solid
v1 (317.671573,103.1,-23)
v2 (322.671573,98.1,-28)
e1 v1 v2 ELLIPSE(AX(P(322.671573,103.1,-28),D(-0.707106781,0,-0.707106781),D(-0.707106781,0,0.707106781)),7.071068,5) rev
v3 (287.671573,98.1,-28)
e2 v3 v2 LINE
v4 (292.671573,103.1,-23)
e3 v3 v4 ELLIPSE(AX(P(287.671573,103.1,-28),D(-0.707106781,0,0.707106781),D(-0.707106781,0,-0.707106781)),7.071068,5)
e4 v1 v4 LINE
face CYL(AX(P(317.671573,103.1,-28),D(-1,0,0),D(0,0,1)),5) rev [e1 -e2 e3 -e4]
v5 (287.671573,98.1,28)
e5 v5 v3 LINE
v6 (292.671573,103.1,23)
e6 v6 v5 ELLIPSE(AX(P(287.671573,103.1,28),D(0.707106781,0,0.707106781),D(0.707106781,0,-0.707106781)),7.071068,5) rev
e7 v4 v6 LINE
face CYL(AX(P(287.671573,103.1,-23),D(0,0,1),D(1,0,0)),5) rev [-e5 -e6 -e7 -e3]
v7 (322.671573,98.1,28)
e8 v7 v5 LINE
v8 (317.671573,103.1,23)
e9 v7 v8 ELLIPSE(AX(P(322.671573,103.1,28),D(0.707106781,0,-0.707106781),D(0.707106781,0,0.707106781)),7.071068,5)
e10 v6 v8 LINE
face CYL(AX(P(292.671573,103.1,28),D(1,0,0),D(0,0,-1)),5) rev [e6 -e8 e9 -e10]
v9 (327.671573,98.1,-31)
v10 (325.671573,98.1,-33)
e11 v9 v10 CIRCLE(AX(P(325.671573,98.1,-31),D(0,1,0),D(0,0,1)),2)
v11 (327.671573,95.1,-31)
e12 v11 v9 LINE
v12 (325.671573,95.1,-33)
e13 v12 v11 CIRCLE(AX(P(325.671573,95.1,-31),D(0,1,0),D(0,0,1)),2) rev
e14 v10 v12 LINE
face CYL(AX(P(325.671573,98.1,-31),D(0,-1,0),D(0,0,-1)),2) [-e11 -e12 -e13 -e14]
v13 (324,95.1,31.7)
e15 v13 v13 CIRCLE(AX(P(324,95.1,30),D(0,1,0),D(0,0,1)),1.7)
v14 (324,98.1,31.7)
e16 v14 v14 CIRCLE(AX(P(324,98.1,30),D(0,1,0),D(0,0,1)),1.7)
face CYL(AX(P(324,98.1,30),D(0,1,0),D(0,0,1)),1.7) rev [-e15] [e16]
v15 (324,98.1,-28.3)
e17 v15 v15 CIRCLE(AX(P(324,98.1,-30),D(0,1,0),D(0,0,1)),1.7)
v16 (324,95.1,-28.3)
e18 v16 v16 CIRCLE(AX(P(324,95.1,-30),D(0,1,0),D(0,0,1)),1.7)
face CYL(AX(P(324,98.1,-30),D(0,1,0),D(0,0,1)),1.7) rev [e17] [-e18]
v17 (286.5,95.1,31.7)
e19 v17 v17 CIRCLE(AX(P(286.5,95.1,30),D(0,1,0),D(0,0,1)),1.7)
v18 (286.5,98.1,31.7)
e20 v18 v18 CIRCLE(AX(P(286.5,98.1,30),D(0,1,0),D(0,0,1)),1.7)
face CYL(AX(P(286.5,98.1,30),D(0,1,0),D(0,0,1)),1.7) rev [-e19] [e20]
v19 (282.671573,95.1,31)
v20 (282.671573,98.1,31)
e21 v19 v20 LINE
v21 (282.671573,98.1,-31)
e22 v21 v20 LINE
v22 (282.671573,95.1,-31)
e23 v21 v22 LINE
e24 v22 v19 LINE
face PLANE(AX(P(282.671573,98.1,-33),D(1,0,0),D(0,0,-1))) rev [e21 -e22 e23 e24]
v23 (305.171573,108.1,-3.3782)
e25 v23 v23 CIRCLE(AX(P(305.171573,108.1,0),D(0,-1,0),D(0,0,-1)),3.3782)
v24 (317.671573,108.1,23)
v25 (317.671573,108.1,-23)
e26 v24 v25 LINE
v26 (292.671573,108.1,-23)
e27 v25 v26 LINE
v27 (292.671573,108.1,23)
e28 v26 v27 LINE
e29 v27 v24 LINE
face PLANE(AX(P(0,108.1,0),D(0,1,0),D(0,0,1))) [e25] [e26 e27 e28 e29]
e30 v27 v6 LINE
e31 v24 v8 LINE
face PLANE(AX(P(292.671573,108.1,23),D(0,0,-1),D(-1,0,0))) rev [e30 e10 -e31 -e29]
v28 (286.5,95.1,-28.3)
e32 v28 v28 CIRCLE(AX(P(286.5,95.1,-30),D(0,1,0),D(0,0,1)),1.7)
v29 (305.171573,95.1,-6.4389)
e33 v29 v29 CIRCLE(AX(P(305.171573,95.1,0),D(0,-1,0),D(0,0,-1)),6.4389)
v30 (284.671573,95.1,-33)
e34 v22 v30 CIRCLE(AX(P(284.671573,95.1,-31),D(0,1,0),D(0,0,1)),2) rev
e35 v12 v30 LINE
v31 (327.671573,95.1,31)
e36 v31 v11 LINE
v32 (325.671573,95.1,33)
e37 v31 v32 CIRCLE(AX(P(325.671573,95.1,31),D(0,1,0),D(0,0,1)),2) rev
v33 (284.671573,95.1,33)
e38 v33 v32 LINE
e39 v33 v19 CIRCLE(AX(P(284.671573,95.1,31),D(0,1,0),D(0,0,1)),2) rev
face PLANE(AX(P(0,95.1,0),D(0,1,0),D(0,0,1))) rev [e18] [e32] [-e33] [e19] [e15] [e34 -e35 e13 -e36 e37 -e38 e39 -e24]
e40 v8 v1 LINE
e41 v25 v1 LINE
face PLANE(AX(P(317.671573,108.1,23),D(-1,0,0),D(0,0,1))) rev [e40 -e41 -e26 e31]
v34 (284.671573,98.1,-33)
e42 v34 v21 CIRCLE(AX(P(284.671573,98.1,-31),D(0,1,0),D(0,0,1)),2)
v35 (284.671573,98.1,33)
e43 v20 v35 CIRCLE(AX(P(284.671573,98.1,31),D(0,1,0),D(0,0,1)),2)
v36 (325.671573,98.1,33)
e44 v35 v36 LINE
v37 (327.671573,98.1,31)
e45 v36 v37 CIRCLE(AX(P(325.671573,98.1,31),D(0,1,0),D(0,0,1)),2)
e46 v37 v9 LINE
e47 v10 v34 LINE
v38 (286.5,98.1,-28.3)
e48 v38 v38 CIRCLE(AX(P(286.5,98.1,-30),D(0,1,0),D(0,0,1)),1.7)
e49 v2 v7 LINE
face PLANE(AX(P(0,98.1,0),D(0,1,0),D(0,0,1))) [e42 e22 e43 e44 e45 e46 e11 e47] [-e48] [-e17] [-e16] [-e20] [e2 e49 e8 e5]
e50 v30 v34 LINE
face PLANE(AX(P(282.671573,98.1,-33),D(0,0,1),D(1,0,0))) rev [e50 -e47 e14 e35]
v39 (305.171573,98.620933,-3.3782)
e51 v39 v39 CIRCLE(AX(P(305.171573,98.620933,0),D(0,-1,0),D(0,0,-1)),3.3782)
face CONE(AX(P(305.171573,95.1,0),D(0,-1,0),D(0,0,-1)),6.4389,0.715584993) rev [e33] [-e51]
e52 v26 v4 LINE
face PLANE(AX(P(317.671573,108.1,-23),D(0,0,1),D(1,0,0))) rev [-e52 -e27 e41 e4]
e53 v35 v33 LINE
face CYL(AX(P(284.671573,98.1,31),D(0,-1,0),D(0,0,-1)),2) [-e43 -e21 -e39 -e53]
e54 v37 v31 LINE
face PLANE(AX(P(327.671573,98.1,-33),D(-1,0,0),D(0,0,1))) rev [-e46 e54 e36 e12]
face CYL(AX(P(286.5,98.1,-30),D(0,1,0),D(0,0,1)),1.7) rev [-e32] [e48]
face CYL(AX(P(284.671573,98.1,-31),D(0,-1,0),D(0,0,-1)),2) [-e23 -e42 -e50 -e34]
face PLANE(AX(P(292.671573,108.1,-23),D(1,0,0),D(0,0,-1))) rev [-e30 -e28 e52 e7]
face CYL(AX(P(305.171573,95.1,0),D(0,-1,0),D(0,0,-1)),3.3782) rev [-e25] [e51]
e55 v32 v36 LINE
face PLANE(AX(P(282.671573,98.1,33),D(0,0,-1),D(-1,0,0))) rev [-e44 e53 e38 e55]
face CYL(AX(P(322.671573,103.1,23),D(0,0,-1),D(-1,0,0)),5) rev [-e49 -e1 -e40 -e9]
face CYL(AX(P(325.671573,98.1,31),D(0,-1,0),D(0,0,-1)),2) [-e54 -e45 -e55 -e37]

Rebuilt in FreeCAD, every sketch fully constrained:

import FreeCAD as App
import Part
import Sketcher


def edges_at(feature, points):
    """Names of the edges that pass closest to the given points."""
    edges = feature.Shape.Edges
    near = lambda p: min(range(len(edges)), key=lambda i: edges[i].distToShape(Part.Vertex(*p))[0])
    return sorted({f"Edge{near(p) + 1}" for p in points})

doc = App.newDocument("Part")
params = doc.addObject("Spreadsheet::Sheet", "Params")
for row, (alias, value) in enumerate([
    ("sketch1_diameter", "1.7 mm"),
    ("sketch1_width", "45 mm"),
    ("sketch1_height", "66 mm"),
    ("pad1_length", "3 mm"),
    ("fillet_radius", "2 mm"),
    ("sketch2_width", "25 mm"),
    ("sketch2_height", "46 mm"),
    ("pad2_length", "10 mm"),
    ("fillet2_radius", "5 mm"),
    ("fillet3_radius", "5 mm"),
    ("hole_diameter", "6.7564 mm"),
    ("hole_csink_diameter", "12.8778 mm"),
    ("sketch4_diameter", "3.4 mm"),
    ("hole2_diameter", "3.4 mm"),
], start=1):
    params.set(f"A{row}", alias)
    params.set(f"B{row}", "=" + value)
    params.setAlias(f"B{row}", alias)

body = doc.addObject("PartDesign::Body", "Body")

sketch1 = body.newObject("Sketcher::SketchObject", "Sketch")
sketch1.AttachmentSupport = (doc.getObject("XZ_Plane"), [""])
sketch1.MapMode = "FlatFace"
sketch1.AttachmentOffset = App.Placement(App.Vector(0, 0, -95.1), App.Rotation())
sketch1.addGeometry([
    Part.LineSegment(App.Vector(282.7, -33, 0), App.Vector(282.7, 33, 0)),
    Part.LineSegment(App.Vector(282.7, 33, 0), App.Vector(327.7, 33, 0)),
    Part.LineSegment(App.Vector(327.7, 33, 0), App.Vector(327.7, -33, 0)),
    Part.LineSegment(App.Vector(327.7, -33, 0), App.Vector(282.7, -33, 0)),
    Part.Circle(App.Vector(286.5, 30, 0), App.Vector(0, 0, 1), 0.8),
    Part.Circle(App.Vector(324, 30, 0), App.Vector(0, 0, 1), 0.8),
    Part.Circle(App.Vector(286.5, -30, 0), App.Vector(0, 0, 1), 0.8),
    Part.Circle(App.Vector(324, -30, 0), App.Vector(0, 0, 1), 0.8),
], False)
sketch1.addConstraint([
    Sketcher.Constraint("Coincident", 0, 2, 1, 1),
    Sketcher.Constraint("Coincident", 1, 2, 2, 1),
    Sketcher.Constraint("Coincident", 2, 2, 3, 1),
    Sketcher.Constraint("Coincident", 3, 2, 0, 1),
    Sketcher.Constraint("Vertical", 0),
    Sketcher.Constraint("Horizontal", 1),
    Sketcher.Constraint("Vertical", 2),
    Sketcher.Constraint("Horizontal", 3),
    Sketcher.Constraint("Equal", 4, 5),
    Sketcher.Constraint("Equal", 5, 6),
    Sketcher.Constraint("Equal", 6, 7),
    Sketcher.Constraint("Symmetric", 4, 3, 6, 3, -1),
    Sketcher.Constraint("Symmetric", 5, 3, 7, 3, -1),
    Sketcher.Constraint("Horizontal", 4, 3, 5, 3),
    Sketcher.Constraint("Diameter", 4, 1.7),
    Sketcher.Constraint("DistanceX", 1, 1, 1, 2, 45.0),
    Sketcher.Constraint("DistanceY", 0, 1, 0, 2, 66.0),
    Sketcher.Constraint("DistanceY", -1, 1, 4, 3, 30.0),
    Sketcher.Constraint("DistanceX", -1, 1, 5, 3, 324.0),
    Sketcher.Constraint("DistanceY", -1, 1, 0, 2, 33.0),
    Sketcher.Constraint("DistanceX", -1, 1, 4, 3, 286.5),
    Sketcher.Constraint("DistanceX", -1, 1, 0, 2, 282.671573),
])
sketch1.setExpression("Constraints[14]", "Params.sketch1_diameter")
sketch1.setExpression("Constraints[15]", "Params.sketch1_width")
sketch1.setExpression("Constraints[16]", "Params.sketch1_height")
pad1 = body.newObject("PartDesign::Pad", "Pad")
pad1.Profile = sketch1
pad1.setExpression("Length", "Params.pad1_length")
pad1.Reversed = True
doc.recompute()

fillet = body.newObject("PartDesign::Fillet", "Fillet")
fillet.Base = (pad1, edges_at(pad1, [
    (282.672, 96.6, -33),
    (327.672, 96.6, -33),
    (327.672, 96.6, 33),
    (282.672, 96.6, 33),
]))
fillet.setExpression("Radius", "Params.fillet_radius")

sketch2 = body.newObject("Sketcher::SketchObject", "Sketch001")
sketch2.AttachmentSupport = (doc.getObject("XZ_Plane"), [""])
sketch2.MapMode = "FlatFace"
sketch2.AttachmentOffset = App.Placement(App.Vector(0, 0, -98.1), App.Rotation())
sketch2.addGeometry([
    Part.LineSegment(App.Vector(293, -23, 0), App.Vector(293, 23, 0)),
    Part.LineSegment(App.Vector(293, 23, 0), App.Vector(318, 23, 0)),
    Part.LineSegment(App.Vector(318, 23, 0), App.Vector(318, -23, 0)),
    Part.LineSegment(App.Vector(318, -23, 0), App.Vector(293, -23, 0)),
], False)
sketch2.addConstraint([
    Sketcher.Constraint("Coincident", 0, 2, 1, 1),
    Sketcher.Constraint("Coincident", 1, 2, 2, 1),
    Sketcher.Constraint("Coincident", 2, 2, 3, 1),
    Sketcher.Constraint("Coincident", 3, 2, 0, 1),
    Sketcher.Constraint("Vertical", 0),
    Sketcher.Constraint("Horizontal", 1),
    Sketcher.Constraint("Vertical", 2),
    Sketcher.Constraint("Horizontal", 3),
    Sketcher.Constraint("DistanceX", 1, 1, 1, 2, 25.0),
    Sketcher.Constraint("DistanceY", 0, 1, 0, 2, 46.0),
    Sketcher.Constraint("DistanceY", -1, 1, 0, 2, 23.0),
    Sketcher.Constraint("DistanceX", -1, 1, 0, 2, 292.671573),
])
sketch2.setExpression("Constraints[8]", "Params.sketch2_width")
sketch2.setExpression("Constraints[9]", "Params.sketch2_height")
pad2 = body.newObject("PartDesign::Pad", "Pad001")
pad2.Profile = sketch2
pad2.setExpression("Length", "Params.pad2_length")
pad2.Reversed = True
doc.recompute()

fillet2 = body.newObject("PartDesign::Fillet", "Fillet001")
fillet2.Base = (pad2, edges_at(pad2, [(305.172, 98.1, -23), (305.172, 98.1, 23)]))
fillet2.setExpression("Radius", "Params.fillet2_radius")
doc.recompute()

fillet3 = body.newObject("PartDesign::Fillet", "Fillet002")
fillet3.Base = (fillet2, edges_at(fillet2, [(292.672, 98.1, 0), (317.672, 98.1, 0)]))
fillet3.setExpression("Radius", "Params.fillet3_radius")

sketch3 = body.newObject("Sketcher::SketchObject", "Sketch002")
sketch3.AttachmentSupport = (doc.getObject("XZ_Plane"), [""])
sketch3.MapMode = "FlatFace"
sketch3.AttachmentOffset = App.Placement(App.Vector(0, 0, -95.1), App.Rotation())
sketch3.addGeometry(Part.Circle(App.Vector(305.2, 0, 0), App.Vector(0, 0, 1), 3.4), False)
sketch3.addConstraint([
    Sketcher.Constraint("PointOnObject", 0, 3, -1),
    Sketcher.Constraint("Diameter", 0, 6.7564),
    Sketcher.Constraint("DistanceX", -1, 1, 0, 3, 305.171573),
])
doc.recompute()
hole = body.newObject("PartDesign::Hole", "Hole")
hole.Profile = sketch3
hole.ThreadType = "None"
hole.setExpression("Diameter", "Params.hole_diameter")
hole.DepthType = "ThroughAll"
hole.HoleCutType = "Countersink"
hole.setExpression("HoleCutDiameter", "Params.hole_csink_diameter")
hole.HoleCutCountersinkAngle = 82

sketch4 = body.newObject("Sketcher::SketchObject", "Sketch003")
sketch4.AttachmentSupport = (doc.getObject("XZ_Plane"), [""])
sketch4.MapMode = "FlatFace"
sketch4.AttachmentOffset = App.Placement(App.Vector(0, 0, -98.1), App.Rotation())
sketch4.addGeometry([
    Part.Circle(App.Vector(324, 30, 0), App.Vector(0, 0, 1), 1.7),
    Part.Circle(App.Vector(286.5, 30, 0), App.Vector(0, 0, 1), 1.7),
    Part.Circle(App.Vector(324, -30, 0), App.Vector(0, 0, 1), 1.7),
    Part.Circle(App.Vector(286.5, -30, 0), App.Vector(0, 0, 1), 1.7),
], False)
sketch4.addConstraint([
    Sketcher.Constraint("Equal", 0, 1),
    Sketcher.Constraint("Equal", 1, 2),
    Sketcher.Constraint("Equal", 2, 3),
    Sketcher.Constraint("Symmetric", 0, 3, 2, 3, -1),
    Sketcher.Constraint("Symmetric", 1, 3, 3, 3, -1),
    Sketcher.Constraint("Horizontal", 0, 3, 1, 3),
    Sketcher.Constraint("Diameter", 0, 3.4),
    Sketcher.Constraint("DistanceX", -1, 1, 0, 3, 324.0),
    Sketcher.Constraint("DistanceY", -1, 1, 0, 3, 30.0),
    Sketcher.Constraint("DistanceX", -1, 1, 1, 3, 286.5),
])
sketch4.setExpression("Constraints[6]", "Params.sketch4_diameter")
doc.recompute()
hole2 = body.newObject("PartDesign::Hole", "Hole001")
hole2.Profile = sketch4
hole2.ThreadType = "None"
hole2.setExpression("Diameter", "Params.hole2_diameter")
hole2.DepthType = "ThroughAll"
hole2.Reversed = True

doc.recompute()
